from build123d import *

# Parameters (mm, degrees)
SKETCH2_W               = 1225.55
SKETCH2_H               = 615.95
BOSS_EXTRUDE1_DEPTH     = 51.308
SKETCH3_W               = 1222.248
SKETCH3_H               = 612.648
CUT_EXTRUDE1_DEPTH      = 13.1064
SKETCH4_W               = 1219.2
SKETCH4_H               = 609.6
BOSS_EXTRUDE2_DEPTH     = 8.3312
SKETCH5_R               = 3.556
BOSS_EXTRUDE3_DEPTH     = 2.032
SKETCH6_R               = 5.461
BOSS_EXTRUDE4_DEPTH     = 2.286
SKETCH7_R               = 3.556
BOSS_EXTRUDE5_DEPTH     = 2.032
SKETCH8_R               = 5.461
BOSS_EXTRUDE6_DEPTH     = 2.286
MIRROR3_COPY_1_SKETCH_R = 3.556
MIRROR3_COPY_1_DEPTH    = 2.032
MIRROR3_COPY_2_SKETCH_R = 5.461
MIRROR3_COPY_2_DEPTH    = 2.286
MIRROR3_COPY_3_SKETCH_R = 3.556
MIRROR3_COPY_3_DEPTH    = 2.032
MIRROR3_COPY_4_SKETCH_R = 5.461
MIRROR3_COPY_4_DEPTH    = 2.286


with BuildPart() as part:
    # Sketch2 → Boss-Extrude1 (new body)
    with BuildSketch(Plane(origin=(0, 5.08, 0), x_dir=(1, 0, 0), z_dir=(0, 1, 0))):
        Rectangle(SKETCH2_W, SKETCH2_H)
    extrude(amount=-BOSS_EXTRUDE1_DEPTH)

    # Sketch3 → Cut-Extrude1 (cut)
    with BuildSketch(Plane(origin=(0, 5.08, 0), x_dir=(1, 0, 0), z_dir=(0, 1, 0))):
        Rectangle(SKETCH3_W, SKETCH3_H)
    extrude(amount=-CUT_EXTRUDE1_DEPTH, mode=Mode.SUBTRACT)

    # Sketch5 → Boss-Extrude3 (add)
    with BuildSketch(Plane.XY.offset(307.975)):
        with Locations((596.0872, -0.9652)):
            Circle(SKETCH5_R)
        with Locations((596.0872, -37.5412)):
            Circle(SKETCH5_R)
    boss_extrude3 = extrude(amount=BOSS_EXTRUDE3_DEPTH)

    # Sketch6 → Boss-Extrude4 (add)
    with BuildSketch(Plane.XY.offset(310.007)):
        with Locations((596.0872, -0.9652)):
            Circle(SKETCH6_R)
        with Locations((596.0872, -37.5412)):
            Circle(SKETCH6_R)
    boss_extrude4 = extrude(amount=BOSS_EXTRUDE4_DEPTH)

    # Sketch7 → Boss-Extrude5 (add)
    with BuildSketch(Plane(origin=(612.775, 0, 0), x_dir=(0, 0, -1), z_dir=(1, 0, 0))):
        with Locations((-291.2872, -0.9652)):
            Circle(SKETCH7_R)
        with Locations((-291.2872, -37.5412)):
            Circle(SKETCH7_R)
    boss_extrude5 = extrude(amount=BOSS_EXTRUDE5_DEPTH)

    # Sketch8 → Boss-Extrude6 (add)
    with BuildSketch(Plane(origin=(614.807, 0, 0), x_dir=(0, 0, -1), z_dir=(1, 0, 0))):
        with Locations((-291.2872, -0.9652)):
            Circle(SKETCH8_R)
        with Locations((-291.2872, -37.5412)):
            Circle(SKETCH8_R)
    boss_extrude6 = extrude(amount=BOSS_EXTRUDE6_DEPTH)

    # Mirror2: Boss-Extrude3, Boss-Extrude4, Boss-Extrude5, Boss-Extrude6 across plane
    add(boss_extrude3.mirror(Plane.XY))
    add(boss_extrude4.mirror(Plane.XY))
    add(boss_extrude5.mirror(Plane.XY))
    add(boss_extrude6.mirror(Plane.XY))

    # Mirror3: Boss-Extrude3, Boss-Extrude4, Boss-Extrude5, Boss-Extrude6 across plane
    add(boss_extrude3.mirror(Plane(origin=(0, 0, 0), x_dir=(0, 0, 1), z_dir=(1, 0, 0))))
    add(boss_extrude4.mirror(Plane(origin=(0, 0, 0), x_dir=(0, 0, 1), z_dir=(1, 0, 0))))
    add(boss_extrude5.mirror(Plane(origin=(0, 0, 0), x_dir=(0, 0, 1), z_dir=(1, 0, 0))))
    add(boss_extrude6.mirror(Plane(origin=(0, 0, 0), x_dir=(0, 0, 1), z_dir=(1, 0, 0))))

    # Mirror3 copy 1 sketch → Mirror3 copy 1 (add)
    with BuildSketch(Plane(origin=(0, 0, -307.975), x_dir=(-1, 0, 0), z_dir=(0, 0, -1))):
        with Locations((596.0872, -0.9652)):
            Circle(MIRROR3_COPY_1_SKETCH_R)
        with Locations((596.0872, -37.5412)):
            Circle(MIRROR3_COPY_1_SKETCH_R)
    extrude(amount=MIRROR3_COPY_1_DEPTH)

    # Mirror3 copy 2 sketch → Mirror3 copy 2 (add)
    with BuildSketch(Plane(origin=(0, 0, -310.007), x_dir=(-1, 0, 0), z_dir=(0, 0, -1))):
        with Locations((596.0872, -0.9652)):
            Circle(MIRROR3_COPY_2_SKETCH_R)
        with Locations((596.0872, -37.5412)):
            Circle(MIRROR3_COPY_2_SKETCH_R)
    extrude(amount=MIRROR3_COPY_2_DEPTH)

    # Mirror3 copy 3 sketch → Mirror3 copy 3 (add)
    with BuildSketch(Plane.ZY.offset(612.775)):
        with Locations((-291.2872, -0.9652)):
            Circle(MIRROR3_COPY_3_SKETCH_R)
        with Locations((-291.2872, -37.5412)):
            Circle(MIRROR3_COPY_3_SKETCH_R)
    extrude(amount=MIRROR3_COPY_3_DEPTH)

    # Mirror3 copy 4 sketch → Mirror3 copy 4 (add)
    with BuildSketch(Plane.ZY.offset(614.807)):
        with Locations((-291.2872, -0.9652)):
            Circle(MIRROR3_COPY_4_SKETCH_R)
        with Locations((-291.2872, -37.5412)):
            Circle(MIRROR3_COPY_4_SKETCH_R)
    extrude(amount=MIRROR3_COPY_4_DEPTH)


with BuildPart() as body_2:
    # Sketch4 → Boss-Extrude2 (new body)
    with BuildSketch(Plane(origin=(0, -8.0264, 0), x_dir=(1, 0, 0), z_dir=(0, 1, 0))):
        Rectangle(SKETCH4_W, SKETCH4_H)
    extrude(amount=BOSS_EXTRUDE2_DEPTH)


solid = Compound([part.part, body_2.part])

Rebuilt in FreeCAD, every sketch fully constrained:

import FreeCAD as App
import Part
import Sketcher
Q = App.Units.Quantity


def add_polygon(sketch, points):
    """Adds a closed chain of lines whose ends are joined by coincident constraints."""
    first, n = sketch.GeometryCount, len(points)
    for a, b in zip(points, points[1:] + points[:1]):
        sketch.addGeometry(Part.LineSegment(App.Vector(*a, 0), App.Vector(*b, 0)), False)
    for i in range(n):
        sketch.addConstraint(Sketcher.Constraint("Coincident", first + i, 2, first + (i + 1) % n, 1))

doc = App.newDocument("Part")
body = doc.addObject("PartDesign::Body", "Body")

# Sketch on XZ plane
sketch1 = body.newObject("Sketcher::SketchObject", "Sketch")
sketch1.AttachmentSupport = (doc.getObject("XZ_Plane"), [""])
sketch1.MapMode = "FlatFace"
sketch1.AttachmentOffset = App.Placement(App.Vector(0, 0, -0.2 * 25.4), App.Rotation())
add_polygon(sketch1, [(-613, -308), (-613, 308), (613, 308), (613, -308)])  # lines 0-3
sketch1.addConstraint([
    Sketcher.Constraint("Vertical", 0),
    Sketcher.Constraint("Horizontal", 1),
    Sketcher.Constraint("Vertical", 2),
    Sketcher.Constraint("Horizontal", 3),
    Sketcher.Constraint("Symmetric", 0, 2, 2, 2, -1, 1),
    Sketcher.Constraint("DistanceX", 1, 1, 1, 2, Q("48.25 in")),
    Sketcher.Constraint("DistanceY", 0, 1, 0, 2, Q("24.25 in")),
])
pad1 = body.newObject("PartDesign::Pad", "Pad")
pad1.Profile = sketch1
pad1.Length = Q("2.02 in")

# Sketch on XZ plane
sketch2 = body.newObject("Sketcher::SketchObject", "Sketch001")
sketch2.AttachmentSupport = (doc.getObject("XZ_Plane"), [""])
sketch2.MapMode = "FlatFace"
sketch2.AttachmentOffset = App.Placement(App.Vector(0, 0, -0.2 * 25.4), App.Rotation())
add_polygon(sketch2, [(-611, -306), (-611, 306), (611, 306), (611, -306)])  # lines 0-3
sketch2.addConstraint([
    Sketcher.Constraint("Vertical", 0),
    Sketcher.Constraint("Horizontal", 1),
    Sketcher.Constraint("Vertical", 2),
    Sketcher.Constraint("Horizontal", 3),
    Sketcher.Constraint("Symmetric", 0, 2, 2, 2, -1, 1),
    Sketcher.Constraint("DistanceX", 1, 1, 1, 2, Q("48.12 in")),
    Sketcher.Constraint("DistanceY", 0, 1, 0, 2, Q("24.12 in")),
])
pocket1 = body.newObject("PartDesign::Pocket", "Pocket")
pocket1.Profile = sketch2
pocket1.Length = Q("0.516 in")
pocket1.Reversed = True

# Sketch on XY plane
sketch3 = body.newObject("Sketcher::SketchObject", "Sketch002")
sketch3.AttachmentSupport = (doc.getObject("XY_Plane"), [""])
sketch3.MapMode = "FlatFace"
sketch3.AttachmentOffset = App.Placement(App.Vector(0, 0, 12.125 * 25.4), App.Rotation())
sketch3.addGeometry([
    Part.Circle(App.Vector(596.1, -1, 0), App.Vector(0, 0, 1), 3.6),
    Part.Circle(App.Vector(596.1, -37.5, 0), App.Vector(0, 0, 1), 3.6),
], False)
sketch3.addConstraint([
    Sketcher.Constraint("Equal", 0, 1),
    Sketcher.Constraint("Vertical", 0, 3, 1, 3),
    Sketcher.Constraint("Diameter", 0, Q("0.28 in")),
    Sketcher.Constraint("DistanceY", 1, 3, 0, 3, Q("1.44 in")),
    Sketcher.Constraint("DistanceX", -1, 1, 0, 3, Q("23.468 in")),
    Sketcher.Constraint("DistanceY", 0, 3, -1, 1, Q("0.038 in")),
])
pad2 = body.newObject("PartDesign::Pad", "Pad001")
pad2.Profile = sketch3
pad2.Length = Q("0.08 in")

# Sketch on XY plane
sketch4 = body.newObject("Sketcher::SketchObject", "Sketch003")
sketch4.AttachmentSupport = (doc.getObject("XY_Plane"), [""])
sketch4.MapMode = "FlatFace"
sketch4.AttachmentOffset = App.Placement(App.Vector(0, 0, 12.205 * 25.4), App.Rotation())
sketch4.addGeometry([
    Part.Circle(App.Vector(596, -1, 0), App.Vector(0, 0, 1), 5),
    Part.Circle(App.Vector(596, -38, 0), App.Vector(0, 0, 1), 5),
], False)
sketch4.addConstraint([
    Sketcher.Constraint("Equal", 0, 1),
    Sketcher.Constraint("Vertical", 0, 3, 1, 3),
    Sketcher.Constraint("Diameter", 0, Q("0.43 in")),
    Sketcher.Constraint("DistanceY", 1, 3, 0, 3, Q("1.44 in")),
    Sketcher.Constraint("DistanceX", -1, 1, 0, 3, Q("23.468 in")),
    Sketcher.Constraint("DistanceY", 0, 3, -1, 1, Q("0.038 in")),
])
pad3 = body.newObject("PartDesign::Pad", "Pad002")
pad3.Profile = sketch4
pad3.Length = Q("0.09 in")

# Sketch on YZ plane
sketch5 = body.newObject("Sketcher::SketchObject", "Sketch004")
sketch5.AttachmentSupport = (doc.getObject("YZ_Plane"), [""])
sketch5.MapMode = "FlatFace"
sketch5.AttachmentOffset = App.Placement(App.Vector(0, 0, 24.125 * 25.4), App.Rotation())
sketch5.addGeometry([
    Part.Circle(App.Vector(-1, 291.3, 0), App.Vector(0, 0, 1), 3.6),
    Part.Circle(App.Vector(-37.5, 291.3, 0), App.Vector(0, 0, 1), 3.6),
], False)
sketch5.addConstraint([
    Sketcher.Constraint("Equal", 0, 1),
    Sketcher.Constraint("Horizontal", 0, 3, 1, 3),
    Sketcher.Constraint("Diameter", 0, Q("0.28 in")),
    Sketcher.Constraint("DistanceX", 1, 3, 0, 3, Q("1.44 in")),
    Sketcher.Constraint("DistanceX", 0, 3, -1, 1, Q("0.038 in")),
    Sketcher.Constraint("DistanceY", -1, 1, 0, 3, Q("11.468 in")),
])
pad4 = body.newObject("PartDesign::Pad", "Pad003")
pad4.Profile = sketch5
pad4.Length = Q("0.08 in")

# Sketch on YZ plane
sketch6 = body.newObject("Sketcher::SketchObject", "Sketch005")
sketch6.AttachmentSupport = (doc.getObject("YZ_Plane"), [""])
sketch6.MapMode = "FlatFace"
sketch6.AttachmentOffset = App.Placement(App.Vector(0, 0, 24.205 * 25.4), App.Rotation())
sketch6.addGeometry([
    Part.Circle(App.Vector(-1, 291, 0), App.Vector(0, 0, 1), 5),
    Part.Circle(App.Vector(-38, 291, 0), App.Vector(0, 0, 1), 5),
], False)
sketch6.addConstraint([
    Sketcher.Constraint("Equal", 0, 1),
    Sketcher.Constraint("Horizontal", 0, 3, 1, 3),
    Sketcher.Constraint("Diameter", 0, Q("0.43 in")),
    Sketcher.Constraint("DistanceX", 1, 3, 0, 3, Q("1.44 in")),
    Sketcher.Constraint("DistanceX", 0, 3, -1, 1, Q("0.038 in")),
    Sketcher.Constraint("DistanceY", -1, 1, 0, 3, Q("11.468 in")),
])
pad5 = body.newObject("PartDesign::Pad", "Pad004")
pad5.Profile = sketch6
pad5.Length = Q("0.09 in")
doc.recompute()

mirrored = body.newObject("PartDesign::Mirrored", "Mirrored")
mirrored.Originals = [pad2, pad3, pad4, pad5]
mirrored.MirrorPlane = (doc.getObject("XY_Plane"), [""])
body.Tip = mirrored
doc.recompute()

mirrored2 = body.newObject("PartDesign::Mirrored", "Mirrored001")
mirrored2.Originals = [pad2, pad3, pad4, pad5]
mirrored2.MirrorPlane = (doc.getObject("YZ_Plane"), [""])
body.Tip = mirrored2

# Sketch on XY plane
sketch7 = body.newObject("Sketcher::SketchObject", "Sketch006")
sketch7.AttachmentSupport = (doc.getObject("XY_Plane"), [""])
sketch7.MapMode = "FlatFace"
sketch7.AttachmentOffset = App.Placement(App.Vector(0, 0, -12.125 * 25.4), App.Rotation())
sketch7.addGeometry([
    Part.Circle(App.Vector(-596.1, -1, 0), App.Vector(0, 0, 1), 3.6),
    Part.Circle(App.Vector(-596.1, -37.5, 0), App.Vector(0, 0, 1), 3.6),
], False)
sketch7.addConstraint([
    Sketcher.Constraint("Equal", 0, 1),
    Sketcher.Constraint("Vertical", 0, 3, 1, 3),
    Sketcher.Constraint("Diameter", 0, Q("0.28 in")),
    Sketcher.Constraint("DistanceY", 1, 3, 0, 3, Q("1.44 in")),
    Sketcher.Constraint("DistanceX", 0, 3, -1, 1, Q("23.468 in")),
    Sketcher.Constraint("DistanceY", 0, 3, -1, 1, Q("0.038 in")),
])
pad6 = body.newObject("PartDesign::Pad", "Pad005")
pad6.Profile = sketch7
pad6.Length = Q("0.08 in")
pad6.Reversed = True

# Sketch on XY plane
sketch8 = body.newObject("Sketcher::SketchObject", "Sketch007")
sketch8.AttachmentSupport = (doc.getObject("XY_Plane"), [""])
sketch8.MapMode = "FlatFace"
sketch8.AttachmentOffset = App.Placement(App.Vector(0, 0, -12.205 * 25.4), App.Rotation())
sketch8.addGeometry([
    Part.Circle(App.Vector(-596, -1, 0), App.Vector(0, 0, 1), 5),
    Part.Circle(App.Vector(-596, -38, 0), App.Vector(0, 0, 1), 5),
], False)
sketch8.addConstraint([
    Sketcher.Constraint("Equal", 0, 1),
    Sketcher.Constraint("Vertical", 0, 3, 1, 3),
    Sketcher.Constraint("Diameter", 0, Q("0.43 in")),
    Sketcher.Constraint("DistanceY", 1, 3, 0, 3, Q("1.44 in")),
    Sketcher.Constraint("DistanceX", 0, 3, -1, 1, Q("23.468 in")),
    Sketcher.Constraint("DistanceY", 0, 3, -1, 1, Q("0.038 in")),
])
pad7 = body.newObject("PartDesign::Pad", "Pad006")
pad7.Profile = sketch8
pad7.Length = Q("0.09 in")
pad7.Reversed = True

# Sketch on YZ plane
sketch9 = body.newObject("Sketcher::SketchObject", "Sketch008")
sketch9.AttachmentSupport = (doc.getObject("YZ_Plane"), [""])
sketch9.MapMode = "FlatFace"
sketch9.AttachmentOffset = App.Placement(App.Vector(0, 0, -24.125 * 25.4), App.Rotation())
sketch9.addGeometry([
    Part.Circle(App.Vector(-1, -291.3, 0), App.Vector(0, 0, 1), 3.6),
    Part.Circle(App.Vector(-37.5, -291.3, 0), App.Vector(0, 0, 1), 3.6),
], False)
sketch9.addConstraint([
    Sketcher.Constraint("Equal", 0, 1),
    Sketcher.Constraint("Horizontal", 0, 3, 1, 3),
    Sketcher.Constraint("Diameter", 0, Q("0.28 in")),
    Sketcher.Constraint("DistanceX", 1, 3, 0, 3, Q("1.44 in")),
    Sketcher.Constraint("DistanceX", 0, 3, -1, 1, Q("0.038 in")),
    Sketcher.Constraint("DistanceY", 0, 3, -1, 1, Q("11.468 in")),
])
pad8 = body.newObject("PartDesign::Pad", "Pad007")
pad8.Profile = sketch9
pad8.Length = Q("0.08 in")
pad8.Reversed = True

# Sketch on YZ plane
sketch10 = body.newObject("Sketcher::SketchObject", "Sketch009")
sketch10.AttachmentSupport = (doc.getObject("YZ_Plane"), [""])
sketch10.MapMode = "FlatFace"
sketch10.AttachmentOffset = App.Placement(App.Vector(0, 0, -24.205 * 25.4), App.Rotation())
sketch10.addGeometry([
    Part.Circle(App.Vector(-1, -291, 0), App.Vector(0, 0, 1), 5),
    Part.Circle(App.Vector(-38, -291, 0), App.Vector(0, 0, 1), 5),
], False)
sketch10.addConstraint([
    Sketcher.Constraint("Equal", 0, 1),
    Sketcher.Constraint("Horizontal", 0, 3, 1, 3),
    Sketcher.Constraint("Diameter", 0, Q("0.43 in")),
    Sketcher.Constraint("DistanceX", 1, 3, 0, 3, Q("1.44 in")),
    Sketcher.Constraint("DistanceX", 0, 3, -1, 1, Q("0.038 in")),
    Sketcher.Constraint("DistanceY", 0, 3, -1, 1, Q("11.468 in")),
])
pad9 = body.newObject("PartDesign::Pad", "Pad008")
pad9.Profile = sketch10
pad9.Length = Q("0.09 in")
pad9.Reversed = True
body2 = doc.addObject("PartDesign::Body", "Body001")

# Sketch on XZ plane
sketch11 = body2.newObject("Sketcher::SketchObject", "Sketch010")
sketch11.AttachmentSupport = (doc.getObject("XZ_Plane001"), [""])
sketch11.MapMode = "FlatFace"
sketch11.AttachmentOffset = App.Placement(App.Vector(0, 0, 0.316 * 25.4), App.Rotation())
add_polygon(sketch11, [(-610, -305), (-610, 305), (610, 305), (610, -305)])  # lines 0-3
sketch11.addConstraint([
    Sketcher.Constraint("Vertical", 0),
    Sketcher.Constraint("Horizontal", 1),
    Sketcher.Constraint("Vertical", 2),
    Sketcher.Constraint("Horizontal", 3),
    Sketcher.Constraint("Symmetric", 0, 2, 2, 2, -1, 1),
    Sketcher.Constraint("DistanceX", 1, 1, 1, 2, Q("48 in")),
    Sketcher.Constraint("DistanceY", 0, 1, 0, 2, Q("24 in")),
])
pad10 = body2.newObject("PartDesign::Pad", "Pad009")
pad10.Profile = sketch11
pad10.Length = Q("0.328 in")
pad10.Reversed = True

doc.recompute()
